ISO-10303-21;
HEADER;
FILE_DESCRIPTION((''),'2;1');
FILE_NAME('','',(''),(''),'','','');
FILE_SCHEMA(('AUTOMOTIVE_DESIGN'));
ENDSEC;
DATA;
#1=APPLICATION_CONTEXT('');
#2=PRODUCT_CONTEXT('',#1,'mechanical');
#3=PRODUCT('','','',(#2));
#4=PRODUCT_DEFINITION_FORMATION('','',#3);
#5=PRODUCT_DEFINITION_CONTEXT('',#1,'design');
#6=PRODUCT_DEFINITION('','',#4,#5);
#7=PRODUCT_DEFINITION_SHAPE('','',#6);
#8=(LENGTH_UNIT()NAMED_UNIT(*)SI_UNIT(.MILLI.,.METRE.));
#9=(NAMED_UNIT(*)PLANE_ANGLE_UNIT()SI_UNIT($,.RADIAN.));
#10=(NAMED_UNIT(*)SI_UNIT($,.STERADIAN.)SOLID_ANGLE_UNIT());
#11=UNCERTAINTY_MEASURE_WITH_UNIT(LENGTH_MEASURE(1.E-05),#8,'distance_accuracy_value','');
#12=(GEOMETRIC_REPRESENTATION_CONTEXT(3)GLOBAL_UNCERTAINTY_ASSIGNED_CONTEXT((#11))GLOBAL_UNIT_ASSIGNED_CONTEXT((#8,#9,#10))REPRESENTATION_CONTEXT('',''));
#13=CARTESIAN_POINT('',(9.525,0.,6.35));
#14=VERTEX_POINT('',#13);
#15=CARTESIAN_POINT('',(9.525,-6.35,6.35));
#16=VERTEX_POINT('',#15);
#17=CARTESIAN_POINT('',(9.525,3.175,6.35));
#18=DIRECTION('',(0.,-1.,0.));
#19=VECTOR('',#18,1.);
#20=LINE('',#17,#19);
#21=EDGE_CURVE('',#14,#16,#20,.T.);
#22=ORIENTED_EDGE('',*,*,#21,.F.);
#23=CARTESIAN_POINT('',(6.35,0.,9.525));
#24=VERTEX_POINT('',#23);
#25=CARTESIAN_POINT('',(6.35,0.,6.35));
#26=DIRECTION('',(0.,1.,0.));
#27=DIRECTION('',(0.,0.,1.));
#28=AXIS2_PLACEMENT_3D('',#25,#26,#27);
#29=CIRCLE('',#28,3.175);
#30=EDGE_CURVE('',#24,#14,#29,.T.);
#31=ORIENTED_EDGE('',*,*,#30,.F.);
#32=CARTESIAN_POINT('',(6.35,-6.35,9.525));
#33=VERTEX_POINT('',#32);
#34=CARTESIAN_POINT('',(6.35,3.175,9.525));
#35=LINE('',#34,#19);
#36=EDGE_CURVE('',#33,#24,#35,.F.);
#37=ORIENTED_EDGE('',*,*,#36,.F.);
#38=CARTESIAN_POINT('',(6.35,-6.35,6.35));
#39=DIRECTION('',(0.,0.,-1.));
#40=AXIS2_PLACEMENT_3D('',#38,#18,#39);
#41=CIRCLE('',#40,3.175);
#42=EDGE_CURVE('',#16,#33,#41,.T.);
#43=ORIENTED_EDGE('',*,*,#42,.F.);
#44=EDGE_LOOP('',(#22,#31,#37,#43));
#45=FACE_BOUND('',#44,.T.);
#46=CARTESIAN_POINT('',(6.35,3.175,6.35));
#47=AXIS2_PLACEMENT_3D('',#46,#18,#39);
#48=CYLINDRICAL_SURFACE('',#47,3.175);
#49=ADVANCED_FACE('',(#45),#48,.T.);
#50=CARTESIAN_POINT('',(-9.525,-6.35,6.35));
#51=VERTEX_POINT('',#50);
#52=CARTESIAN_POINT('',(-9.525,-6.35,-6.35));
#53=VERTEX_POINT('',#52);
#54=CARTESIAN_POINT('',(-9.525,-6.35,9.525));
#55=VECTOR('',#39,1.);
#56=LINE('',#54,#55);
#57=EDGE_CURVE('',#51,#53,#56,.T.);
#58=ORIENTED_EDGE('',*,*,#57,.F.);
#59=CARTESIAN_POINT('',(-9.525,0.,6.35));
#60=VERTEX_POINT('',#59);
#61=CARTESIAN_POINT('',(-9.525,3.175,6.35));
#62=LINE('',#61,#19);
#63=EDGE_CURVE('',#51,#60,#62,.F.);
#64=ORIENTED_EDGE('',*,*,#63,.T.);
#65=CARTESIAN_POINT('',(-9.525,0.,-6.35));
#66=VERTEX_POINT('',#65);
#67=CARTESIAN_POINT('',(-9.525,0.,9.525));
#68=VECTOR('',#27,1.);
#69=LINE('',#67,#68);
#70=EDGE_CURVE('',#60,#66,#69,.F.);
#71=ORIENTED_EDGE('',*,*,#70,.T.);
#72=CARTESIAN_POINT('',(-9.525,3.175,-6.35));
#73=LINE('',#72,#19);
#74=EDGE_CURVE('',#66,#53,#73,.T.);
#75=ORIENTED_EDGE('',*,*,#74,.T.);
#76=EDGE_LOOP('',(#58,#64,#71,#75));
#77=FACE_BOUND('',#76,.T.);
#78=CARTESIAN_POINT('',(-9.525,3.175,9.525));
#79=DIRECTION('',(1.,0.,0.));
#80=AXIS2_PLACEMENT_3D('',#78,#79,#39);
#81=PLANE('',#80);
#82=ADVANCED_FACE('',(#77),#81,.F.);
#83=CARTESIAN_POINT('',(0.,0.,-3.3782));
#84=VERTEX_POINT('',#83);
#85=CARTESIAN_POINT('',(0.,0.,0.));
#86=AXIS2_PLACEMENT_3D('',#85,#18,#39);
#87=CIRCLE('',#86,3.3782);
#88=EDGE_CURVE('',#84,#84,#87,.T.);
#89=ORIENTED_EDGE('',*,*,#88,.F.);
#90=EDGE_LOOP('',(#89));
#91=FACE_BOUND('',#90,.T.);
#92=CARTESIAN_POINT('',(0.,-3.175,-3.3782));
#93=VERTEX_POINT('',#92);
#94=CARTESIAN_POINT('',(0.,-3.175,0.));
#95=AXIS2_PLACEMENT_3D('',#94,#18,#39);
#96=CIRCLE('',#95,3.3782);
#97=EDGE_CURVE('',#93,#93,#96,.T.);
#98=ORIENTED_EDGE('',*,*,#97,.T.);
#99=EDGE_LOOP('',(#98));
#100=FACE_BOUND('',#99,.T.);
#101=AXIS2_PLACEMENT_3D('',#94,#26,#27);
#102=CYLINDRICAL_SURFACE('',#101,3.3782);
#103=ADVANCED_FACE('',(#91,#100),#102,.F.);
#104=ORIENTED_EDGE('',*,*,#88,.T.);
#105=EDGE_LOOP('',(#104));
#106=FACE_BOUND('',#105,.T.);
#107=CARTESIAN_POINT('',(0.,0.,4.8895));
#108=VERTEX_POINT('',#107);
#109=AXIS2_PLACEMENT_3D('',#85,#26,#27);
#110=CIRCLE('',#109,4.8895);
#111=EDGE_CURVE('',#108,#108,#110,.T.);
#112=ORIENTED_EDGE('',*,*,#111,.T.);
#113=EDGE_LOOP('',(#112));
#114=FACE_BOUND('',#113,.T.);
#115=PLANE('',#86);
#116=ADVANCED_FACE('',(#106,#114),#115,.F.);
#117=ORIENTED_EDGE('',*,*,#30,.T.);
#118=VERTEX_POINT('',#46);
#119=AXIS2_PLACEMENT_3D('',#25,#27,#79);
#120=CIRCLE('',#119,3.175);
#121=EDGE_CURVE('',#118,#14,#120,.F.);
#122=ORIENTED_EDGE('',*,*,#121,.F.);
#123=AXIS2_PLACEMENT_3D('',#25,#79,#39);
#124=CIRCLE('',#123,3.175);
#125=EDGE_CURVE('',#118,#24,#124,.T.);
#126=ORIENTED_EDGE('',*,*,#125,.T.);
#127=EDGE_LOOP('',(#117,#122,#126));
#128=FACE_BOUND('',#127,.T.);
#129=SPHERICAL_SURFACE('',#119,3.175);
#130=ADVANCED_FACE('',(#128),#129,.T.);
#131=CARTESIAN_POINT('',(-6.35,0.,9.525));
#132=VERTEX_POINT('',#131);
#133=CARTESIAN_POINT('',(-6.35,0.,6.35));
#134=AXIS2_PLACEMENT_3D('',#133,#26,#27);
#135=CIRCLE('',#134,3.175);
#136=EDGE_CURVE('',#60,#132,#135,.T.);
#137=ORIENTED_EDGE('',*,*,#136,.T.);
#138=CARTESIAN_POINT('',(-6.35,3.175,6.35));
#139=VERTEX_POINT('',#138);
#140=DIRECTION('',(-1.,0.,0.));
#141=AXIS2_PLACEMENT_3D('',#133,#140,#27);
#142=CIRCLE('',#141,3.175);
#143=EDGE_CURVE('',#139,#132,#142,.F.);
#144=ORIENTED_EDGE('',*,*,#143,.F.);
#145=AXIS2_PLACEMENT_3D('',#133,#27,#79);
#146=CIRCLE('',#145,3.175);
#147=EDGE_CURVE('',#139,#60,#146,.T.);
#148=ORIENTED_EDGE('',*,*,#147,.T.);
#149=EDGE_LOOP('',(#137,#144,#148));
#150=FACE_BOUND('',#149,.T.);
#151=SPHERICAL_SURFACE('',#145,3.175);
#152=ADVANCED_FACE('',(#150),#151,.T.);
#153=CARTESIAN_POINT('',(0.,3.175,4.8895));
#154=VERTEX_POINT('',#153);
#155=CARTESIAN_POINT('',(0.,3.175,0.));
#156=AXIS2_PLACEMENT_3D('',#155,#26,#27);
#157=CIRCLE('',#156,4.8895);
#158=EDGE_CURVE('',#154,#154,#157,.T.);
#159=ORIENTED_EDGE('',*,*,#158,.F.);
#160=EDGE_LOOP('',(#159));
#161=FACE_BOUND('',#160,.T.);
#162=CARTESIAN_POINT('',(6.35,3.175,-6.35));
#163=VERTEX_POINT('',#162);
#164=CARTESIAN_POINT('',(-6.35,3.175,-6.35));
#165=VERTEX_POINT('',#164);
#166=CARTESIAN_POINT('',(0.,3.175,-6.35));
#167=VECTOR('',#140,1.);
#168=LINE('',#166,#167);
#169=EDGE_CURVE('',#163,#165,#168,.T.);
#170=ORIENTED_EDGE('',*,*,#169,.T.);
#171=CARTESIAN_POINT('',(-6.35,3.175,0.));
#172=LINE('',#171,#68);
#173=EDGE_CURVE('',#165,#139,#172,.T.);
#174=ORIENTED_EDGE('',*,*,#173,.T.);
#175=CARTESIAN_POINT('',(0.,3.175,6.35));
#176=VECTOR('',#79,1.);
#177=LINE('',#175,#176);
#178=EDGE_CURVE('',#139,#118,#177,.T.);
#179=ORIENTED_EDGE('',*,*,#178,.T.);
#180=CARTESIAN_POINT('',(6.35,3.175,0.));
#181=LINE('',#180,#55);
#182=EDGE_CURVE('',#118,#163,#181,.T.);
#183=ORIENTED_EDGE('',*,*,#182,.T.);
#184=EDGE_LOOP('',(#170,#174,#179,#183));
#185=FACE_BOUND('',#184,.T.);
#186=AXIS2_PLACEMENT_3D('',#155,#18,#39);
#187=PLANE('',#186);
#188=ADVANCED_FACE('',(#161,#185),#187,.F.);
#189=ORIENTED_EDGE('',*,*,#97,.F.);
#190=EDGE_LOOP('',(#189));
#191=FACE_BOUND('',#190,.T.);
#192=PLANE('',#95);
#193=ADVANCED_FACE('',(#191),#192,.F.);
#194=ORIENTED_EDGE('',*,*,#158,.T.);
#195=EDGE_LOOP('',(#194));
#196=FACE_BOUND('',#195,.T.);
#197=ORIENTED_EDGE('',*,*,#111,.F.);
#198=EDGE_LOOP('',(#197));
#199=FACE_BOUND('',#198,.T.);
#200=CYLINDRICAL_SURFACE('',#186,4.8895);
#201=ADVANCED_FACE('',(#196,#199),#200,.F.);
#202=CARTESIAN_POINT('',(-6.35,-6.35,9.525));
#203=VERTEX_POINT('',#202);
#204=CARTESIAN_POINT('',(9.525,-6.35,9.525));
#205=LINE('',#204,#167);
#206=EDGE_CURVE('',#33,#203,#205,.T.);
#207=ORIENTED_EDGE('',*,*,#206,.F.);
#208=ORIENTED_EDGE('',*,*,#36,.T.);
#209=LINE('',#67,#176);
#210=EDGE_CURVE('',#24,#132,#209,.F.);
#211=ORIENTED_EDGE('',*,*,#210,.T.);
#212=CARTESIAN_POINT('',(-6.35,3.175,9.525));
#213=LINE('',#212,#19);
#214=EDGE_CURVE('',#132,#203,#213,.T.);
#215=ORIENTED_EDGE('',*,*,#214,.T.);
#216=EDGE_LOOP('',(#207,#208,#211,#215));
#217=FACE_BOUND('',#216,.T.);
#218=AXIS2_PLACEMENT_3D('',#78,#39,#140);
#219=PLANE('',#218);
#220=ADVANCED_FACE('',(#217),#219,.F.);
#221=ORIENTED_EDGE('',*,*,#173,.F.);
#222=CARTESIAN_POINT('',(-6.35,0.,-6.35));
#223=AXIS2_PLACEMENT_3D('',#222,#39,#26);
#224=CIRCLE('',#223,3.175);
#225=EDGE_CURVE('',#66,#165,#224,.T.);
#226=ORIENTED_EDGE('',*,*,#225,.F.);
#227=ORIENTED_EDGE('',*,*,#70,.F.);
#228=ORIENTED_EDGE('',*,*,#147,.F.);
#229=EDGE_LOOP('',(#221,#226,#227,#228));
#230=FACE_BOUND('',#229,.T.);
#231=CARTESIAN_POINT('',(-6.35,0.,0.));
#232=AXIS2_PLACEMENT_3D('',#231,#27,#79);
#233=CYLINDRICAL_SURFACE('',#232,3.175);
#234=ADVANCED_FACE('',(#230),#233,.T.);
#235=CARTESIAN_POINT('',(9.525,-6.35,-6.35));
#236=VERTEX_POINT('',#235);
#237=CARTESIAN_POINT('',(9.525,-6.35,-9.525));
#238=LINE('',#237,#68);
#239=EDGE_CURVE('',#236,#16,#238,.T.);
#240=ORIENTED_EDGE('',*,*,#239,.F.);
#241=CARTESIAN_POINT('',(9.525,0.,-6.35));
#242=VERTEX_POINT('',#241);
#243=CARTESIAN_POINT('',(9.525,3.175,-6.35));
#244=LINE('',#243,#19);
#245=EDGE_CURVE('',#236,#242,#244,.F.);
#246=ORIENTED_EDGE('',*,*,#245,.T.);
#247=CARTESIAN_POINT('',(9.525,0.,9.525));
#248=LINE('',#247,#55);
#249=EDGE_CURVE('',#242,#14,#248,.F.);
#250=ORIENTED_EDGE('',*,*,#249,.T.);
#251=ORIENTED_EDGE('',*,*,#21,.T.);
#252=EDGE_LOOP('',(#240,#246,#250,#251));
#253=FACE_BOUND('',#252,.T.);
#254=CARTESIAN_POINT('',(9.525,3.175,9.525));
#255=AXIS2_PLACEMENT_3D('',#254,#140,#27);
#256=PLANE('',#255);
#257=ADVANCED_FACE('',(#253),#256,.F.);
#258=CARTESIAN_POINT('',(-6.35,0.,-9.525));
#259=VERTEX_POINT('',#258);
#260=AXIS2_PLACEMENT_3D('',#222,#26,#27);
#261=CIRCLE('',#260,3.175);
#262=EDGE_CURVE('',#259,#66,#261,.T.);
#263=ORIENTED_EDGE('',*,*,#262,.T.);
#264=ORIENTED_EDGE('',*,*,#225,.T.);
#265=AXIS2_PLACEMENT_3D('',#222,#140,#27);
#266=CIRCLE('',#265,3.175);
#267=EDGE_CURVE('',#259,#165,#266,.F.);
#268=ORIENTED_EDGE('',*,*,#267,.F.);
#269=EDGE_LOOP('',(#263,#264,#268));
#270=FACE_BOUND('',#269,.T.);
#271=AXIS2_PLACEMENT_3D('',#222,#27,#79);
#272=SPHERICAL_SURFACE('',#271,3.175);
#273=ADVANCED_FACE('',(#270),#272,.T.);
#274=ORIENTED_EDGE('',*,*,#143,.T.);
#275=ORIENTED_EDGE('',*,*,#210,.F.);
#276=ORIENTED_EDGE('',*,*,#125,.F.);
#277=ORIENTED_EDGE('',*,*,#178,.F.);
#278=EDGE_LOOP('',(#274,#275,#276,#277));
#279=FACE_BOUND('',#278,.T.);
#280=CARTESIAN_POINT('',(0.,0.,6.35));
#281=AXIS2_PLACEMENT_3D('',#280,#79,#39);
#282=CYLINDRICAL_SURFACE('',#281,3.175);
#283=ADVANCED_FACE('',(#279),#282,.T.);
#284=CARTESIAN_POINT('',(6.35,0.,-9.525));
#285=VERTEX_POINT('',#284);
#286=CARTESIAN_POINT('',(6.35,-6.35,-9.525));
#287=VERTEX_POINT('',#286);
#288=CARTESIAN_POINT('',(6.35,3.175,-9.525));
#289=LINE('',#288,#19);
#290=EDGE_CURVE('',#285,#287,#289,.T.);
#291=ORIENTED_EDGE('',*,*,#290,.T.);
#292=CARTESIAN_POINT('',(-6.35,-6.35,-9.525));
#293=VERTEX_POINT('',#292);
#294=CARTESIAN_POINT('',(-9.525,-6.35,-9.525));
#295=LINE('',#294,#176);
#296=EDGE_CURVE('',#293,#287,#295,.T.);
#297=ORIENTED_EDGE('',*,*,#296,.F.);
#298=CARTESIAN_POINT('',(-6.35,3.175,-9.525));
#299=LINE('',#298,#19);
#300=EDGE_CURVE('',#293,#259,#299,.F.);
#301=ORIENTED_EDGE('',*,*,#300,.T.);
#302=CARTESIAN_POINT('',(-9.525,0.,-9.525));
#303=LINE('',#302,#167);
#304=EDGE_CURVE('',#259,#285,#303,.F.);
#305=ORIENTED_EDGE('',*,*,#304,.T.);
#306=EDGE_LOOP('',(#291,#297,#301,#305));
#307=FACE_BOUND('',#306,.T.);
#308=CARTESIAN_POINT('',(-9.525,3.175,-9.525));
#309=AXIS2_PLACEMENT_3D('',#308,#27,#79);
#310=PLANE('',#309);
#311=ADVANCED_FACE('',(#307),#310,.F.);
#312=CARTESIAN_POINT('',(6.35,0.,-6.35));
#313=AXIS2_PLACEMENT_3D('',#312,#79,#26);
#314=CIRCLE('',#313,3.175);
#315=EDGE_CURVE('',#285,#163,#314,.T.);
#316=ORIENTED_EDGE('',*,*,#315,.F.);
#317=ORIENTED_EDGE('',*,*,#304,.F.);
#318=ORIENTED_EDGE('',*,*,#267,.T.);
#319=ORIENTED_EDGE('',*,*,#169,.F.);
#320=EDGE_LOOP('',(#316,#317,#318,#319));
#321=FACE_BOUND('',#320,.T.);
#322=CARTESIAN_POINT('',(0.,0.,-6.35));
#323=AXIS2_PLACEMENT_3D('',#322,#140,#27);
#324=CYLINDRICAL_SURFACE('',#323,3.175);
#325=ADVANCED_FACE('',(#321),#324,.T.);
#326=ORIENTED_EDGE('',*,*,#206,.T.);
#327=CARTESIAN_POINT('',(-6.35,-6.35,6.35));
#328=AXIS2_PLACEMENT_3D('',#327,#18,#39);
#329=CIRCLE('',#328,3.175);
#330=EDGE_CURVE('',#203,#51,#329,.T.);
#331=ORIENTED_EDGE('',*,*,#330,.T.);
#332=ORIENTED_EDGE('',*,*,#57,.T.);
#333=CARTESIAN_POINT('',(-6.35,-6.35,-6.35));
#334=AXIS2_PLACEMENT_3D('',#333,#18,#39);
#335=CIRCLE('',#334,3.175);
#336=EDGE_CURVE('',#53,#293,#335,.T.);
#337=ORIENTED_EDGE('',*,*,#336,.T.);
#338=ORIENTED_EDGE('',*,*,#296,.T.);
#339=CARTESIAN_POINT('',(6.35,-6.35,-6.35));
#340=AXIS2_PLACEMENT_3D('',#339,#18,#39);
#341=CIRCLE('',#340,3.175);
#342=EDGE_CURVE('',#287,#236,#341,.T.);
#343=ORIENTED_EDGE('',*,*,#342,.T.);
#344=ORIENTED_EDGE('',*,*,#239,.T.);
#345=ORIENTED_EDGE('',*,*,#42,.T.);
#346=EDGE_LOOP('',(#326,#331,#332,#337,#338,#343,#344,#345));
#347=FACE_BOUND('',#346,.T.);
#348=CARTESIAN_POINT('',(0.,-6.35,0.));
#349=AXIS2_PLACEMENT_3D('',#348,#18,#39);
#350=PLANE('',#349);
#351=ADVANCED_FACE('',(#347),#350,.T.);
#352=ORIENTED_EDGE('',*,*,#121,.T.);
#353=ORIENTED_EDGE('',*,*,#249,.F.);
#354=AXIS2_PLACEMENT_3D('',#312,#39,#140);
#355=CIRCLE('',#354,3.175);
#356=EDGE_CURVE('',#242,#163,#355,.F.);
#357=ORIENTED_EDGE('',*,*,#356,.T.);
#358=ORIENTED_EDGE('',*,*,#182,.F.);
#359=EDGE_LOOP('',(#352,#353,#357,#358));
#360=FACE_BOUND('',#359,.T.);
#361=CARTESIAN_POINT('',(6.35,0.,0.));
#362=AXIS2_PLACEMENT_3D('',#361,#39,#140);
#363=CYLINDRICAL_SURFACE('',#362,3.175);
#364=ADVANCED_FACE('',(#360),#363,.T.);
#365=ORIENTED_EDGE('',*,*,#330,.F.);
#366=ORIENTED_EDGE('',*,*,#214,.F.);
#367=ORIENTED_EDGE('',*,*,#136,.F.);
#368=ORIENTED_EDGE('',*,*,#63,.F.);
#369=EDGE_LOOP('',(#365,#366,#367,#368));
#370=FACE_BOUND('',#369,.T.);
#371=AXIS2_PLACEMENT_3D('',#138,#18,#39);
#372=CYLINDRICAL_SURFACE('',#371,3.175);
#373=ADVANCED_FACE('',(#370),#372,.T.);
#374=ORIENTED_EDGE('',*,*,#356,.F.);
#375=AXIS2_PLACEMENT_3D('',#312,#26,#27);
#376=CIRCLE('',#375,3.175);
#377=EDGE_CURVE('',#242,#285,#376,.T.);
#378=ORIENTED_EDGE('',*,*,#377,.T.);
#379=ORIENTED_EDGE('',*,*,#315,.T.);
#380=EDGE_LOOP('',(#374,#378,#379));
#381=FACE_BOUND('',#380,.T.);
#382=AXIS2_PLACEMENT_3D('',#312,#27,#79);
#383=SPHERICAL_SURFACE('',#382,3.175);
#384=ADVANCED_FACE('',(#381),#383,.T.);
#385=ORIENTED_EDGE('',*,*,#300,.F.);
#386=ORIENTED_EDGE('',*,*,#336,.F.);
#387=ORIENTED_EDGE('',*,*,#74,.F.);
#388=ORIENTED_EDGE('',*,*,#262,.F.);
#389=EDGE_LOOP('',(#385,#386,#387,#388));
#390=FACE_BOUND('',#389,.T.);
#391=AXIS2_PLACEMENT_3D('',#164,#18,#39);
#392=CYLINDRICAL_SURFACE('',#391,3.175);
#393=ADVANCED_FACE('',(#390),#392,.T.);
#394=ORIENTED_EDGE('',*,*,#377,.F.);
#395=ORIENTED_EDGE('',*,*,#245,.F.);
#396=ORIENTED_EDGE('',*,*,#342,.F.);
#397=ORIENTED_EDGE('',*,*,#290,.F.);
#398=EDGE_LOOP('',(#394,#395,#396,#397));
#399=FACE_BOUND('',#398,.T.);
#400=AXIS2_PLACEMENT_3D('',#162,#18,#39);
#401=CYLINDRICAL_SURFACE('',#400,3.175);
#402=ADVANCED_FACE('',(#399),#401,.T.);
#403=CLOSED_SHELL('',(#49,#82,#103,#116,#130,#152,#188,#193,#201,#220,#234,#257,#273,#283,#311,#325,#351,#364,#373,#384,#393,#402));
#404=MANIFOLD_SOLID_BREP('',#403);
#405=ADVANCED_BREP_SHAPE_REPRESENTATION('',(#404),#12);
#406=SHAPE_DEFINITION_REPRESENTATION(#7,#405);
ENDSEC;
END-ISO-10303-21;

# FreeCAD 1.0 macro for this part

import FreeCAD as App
import Part
import Sketcher
from FreeCAD import Vector
Q = App.Units.Quantity


def edges_at(feature, points):
    """Names of the edges that pass closest to the given points."""
    edges = feature.Shape.Edges
    near = lambda p: min(range(len(edges)), key=lambda i: edges[i].distToShape(Part.Vertex(*p))[0])
    return sorted({f"Edge{near(p) + 1}" for p in points})


def add_polygon(sketch, points):
    """Adds a closed chain of lines whose ends are joined by coincident constraints."""
    first, n = sketch.GeometryCount, len(points)
    for a, b in zip(points, points[1:] + points[:1]):
        sketch.addGeometry(Part.LineSegment(App.Vector(*a, 0), App.Vector(*b, 0)), False)
    for i in range(n):
        sketch.addConstraint(Sketcher.Constraint("Coincident", first + i, 2, first + (i + 1) % n, 1))

doc = App.newDocument("Part")
body = doc.addObject("PartDesign::Body", "Body")

# Sketch on XZ plane
sketch1 = doc.addObject("Sketcher::SketchObject", "Sketch")
body.addObject(sketch1)
sketch1.AttachmentSupport = (doc.XZ_Plane, [""])
sketch1.MapMode = "FlatFace"
add_polygon(sketch1, [(-9.525, -9.525), (-9.525, 9.525), (9.525, 9.525), (9.525, -9.525)])  # lines 0-3
sketch1.addGeometry(Part.Circle(Vector(0, 0, 0), Vector(0, 0, 1), 4.8895), False)  # 4
sketch1.addConstraint([
    Sketcher.Constraint("Vertical", 0),
    Sketcher.Constraint("Horizontal", 1),
    Sketcher.Constraint("Vertical", 2),
    Sketcher.Constraint("Horizontal", 3),
    Sketcher.Constraint("Coincident", 4, 3, -1, 1),
    Sketcher.Constraint("Symmetric", 0, 2, 2, 2, -1, 1),
    Sketcher.Constraint("Equal", 3, 0),
    Sketcher.Constraint("Diameter", 4, Q("0.385 in")),
    Sketcher.Constraint("DistanceX", 1, 1, 1, 2, Q("0.75 in")),
])
pad1 = doc.addObject("PartDesign::Pad", "Pad")
body.addObject(pad1)
pad1.Profile = sketch1
pad1.Length = Q("0.125 in")
pad1.Reversed = True

# Sketch on XZ plane
sketch2 = doc.addObject("Sketcher::SketchObject", "Sketch001")
body.addObject(sketch2)
sketch2.AttachmentSupport = (doc.XZ_Plane, [""])
sketch2.MapMode = "FlatFace"
add_polygon(sketch2, [(-9.525, 9.525), (-9.525, -9.525), (9.525, -9.525), (9.525, 9.525)])  # lines 0-3
sketch2.addGeometry(Part.Circle(Vector(0, 0, 0), Vector(0, 0, 1), 3.3782), False)  # 4
sketch2.addConstraint([
    Sketcher.Constraint("Vertical", 0),
    Sketcher.Constraint("Horizontal", 1),
    Sketcher.Constraint("Vertical", 2),
    Sketcher.Constraint("Horizontal", 3),
    Sketcher.Constraint("Coincident", 4, 3, -1, 1),
    Sketcher.Constraint("Symmetric", 0, 2, 2, 2, -1, 1),
    Sketcher.Constraint("Equal", 3, 0),
    Sketcher.Constraint("Diameter", 4, Q("0.266 in")),
    Sketcher.Constraint("DistanceX", 1, 1, 1, 2, Q("0.75 in")),
])
pad2 = doc.addObject("PartDesign::Pad", "Pad001")
body.addObject(pad2)
pad2.Profile = sketch2
pad2.Length = Q("0.125 in")

# Sketch on XZ plane
sketch3 = doc.addObject("Sketcher::SketchObject", "Sketch002")
body.addObject(sketch3)
sketch3.AttachmentSupport = (doc.XZ_Plane, [""])
sketch3.MapMode = "FlatFace"
sketch3.AttachmentOffset = App.Placement(Vector(0, 0, 0.125 * 25.4), App.Rotation())
add_polygon(sketch3, [(-9.525, 9.525), (-9.525, -9.525), (9.525, -9.525), (9.525, 9.525)])  # lines 0-3
sketch3.addConstraint([
    Sketcher.Constraint("Vertical", 0),
    Sketcher.Constraint("Horizontal", 1),
    Sketcher.Constraint("Vertical", 2),
    Sketcher.Constraint("Horizontal", 3),
    Sketcher.Constraint("Symmetric", 0, 2, 2, 2, -1, 1),
    Sketcher.Constraint("Equal", 3, 0),
    Sketcher.Constraint("DistanceX", 1, 1, 1, 2, Q("0.75 in")),
])
pad3 = doc.addObject("PartDesign::Pad", "Pad002")
body.addObject(pad3)
pad3.Profile = sketch3
pad3.Length = Q("0.125 in")
doc.recompute()

fillet = doc.addObject("PartDesign::Fillet", "Fillet")
body.addObject(fillet)
fillet.Base = (pad3, edges_at(pad3, [
    (-9.525, 3.175, 0),
    (0, 3.175, 9.525),
    (9.525, 3.175, 0),
    (0, 3.175, -9.525),
    (9.525, -1.587, 9.525),
    (-9.525, -1.587, 9.525),
    (-9.525, -1.587, -9.525),
    (9.525, -1.587, -9.525),
]))
fillet.Radius = Q("0.125 in")

doc.recompute()
